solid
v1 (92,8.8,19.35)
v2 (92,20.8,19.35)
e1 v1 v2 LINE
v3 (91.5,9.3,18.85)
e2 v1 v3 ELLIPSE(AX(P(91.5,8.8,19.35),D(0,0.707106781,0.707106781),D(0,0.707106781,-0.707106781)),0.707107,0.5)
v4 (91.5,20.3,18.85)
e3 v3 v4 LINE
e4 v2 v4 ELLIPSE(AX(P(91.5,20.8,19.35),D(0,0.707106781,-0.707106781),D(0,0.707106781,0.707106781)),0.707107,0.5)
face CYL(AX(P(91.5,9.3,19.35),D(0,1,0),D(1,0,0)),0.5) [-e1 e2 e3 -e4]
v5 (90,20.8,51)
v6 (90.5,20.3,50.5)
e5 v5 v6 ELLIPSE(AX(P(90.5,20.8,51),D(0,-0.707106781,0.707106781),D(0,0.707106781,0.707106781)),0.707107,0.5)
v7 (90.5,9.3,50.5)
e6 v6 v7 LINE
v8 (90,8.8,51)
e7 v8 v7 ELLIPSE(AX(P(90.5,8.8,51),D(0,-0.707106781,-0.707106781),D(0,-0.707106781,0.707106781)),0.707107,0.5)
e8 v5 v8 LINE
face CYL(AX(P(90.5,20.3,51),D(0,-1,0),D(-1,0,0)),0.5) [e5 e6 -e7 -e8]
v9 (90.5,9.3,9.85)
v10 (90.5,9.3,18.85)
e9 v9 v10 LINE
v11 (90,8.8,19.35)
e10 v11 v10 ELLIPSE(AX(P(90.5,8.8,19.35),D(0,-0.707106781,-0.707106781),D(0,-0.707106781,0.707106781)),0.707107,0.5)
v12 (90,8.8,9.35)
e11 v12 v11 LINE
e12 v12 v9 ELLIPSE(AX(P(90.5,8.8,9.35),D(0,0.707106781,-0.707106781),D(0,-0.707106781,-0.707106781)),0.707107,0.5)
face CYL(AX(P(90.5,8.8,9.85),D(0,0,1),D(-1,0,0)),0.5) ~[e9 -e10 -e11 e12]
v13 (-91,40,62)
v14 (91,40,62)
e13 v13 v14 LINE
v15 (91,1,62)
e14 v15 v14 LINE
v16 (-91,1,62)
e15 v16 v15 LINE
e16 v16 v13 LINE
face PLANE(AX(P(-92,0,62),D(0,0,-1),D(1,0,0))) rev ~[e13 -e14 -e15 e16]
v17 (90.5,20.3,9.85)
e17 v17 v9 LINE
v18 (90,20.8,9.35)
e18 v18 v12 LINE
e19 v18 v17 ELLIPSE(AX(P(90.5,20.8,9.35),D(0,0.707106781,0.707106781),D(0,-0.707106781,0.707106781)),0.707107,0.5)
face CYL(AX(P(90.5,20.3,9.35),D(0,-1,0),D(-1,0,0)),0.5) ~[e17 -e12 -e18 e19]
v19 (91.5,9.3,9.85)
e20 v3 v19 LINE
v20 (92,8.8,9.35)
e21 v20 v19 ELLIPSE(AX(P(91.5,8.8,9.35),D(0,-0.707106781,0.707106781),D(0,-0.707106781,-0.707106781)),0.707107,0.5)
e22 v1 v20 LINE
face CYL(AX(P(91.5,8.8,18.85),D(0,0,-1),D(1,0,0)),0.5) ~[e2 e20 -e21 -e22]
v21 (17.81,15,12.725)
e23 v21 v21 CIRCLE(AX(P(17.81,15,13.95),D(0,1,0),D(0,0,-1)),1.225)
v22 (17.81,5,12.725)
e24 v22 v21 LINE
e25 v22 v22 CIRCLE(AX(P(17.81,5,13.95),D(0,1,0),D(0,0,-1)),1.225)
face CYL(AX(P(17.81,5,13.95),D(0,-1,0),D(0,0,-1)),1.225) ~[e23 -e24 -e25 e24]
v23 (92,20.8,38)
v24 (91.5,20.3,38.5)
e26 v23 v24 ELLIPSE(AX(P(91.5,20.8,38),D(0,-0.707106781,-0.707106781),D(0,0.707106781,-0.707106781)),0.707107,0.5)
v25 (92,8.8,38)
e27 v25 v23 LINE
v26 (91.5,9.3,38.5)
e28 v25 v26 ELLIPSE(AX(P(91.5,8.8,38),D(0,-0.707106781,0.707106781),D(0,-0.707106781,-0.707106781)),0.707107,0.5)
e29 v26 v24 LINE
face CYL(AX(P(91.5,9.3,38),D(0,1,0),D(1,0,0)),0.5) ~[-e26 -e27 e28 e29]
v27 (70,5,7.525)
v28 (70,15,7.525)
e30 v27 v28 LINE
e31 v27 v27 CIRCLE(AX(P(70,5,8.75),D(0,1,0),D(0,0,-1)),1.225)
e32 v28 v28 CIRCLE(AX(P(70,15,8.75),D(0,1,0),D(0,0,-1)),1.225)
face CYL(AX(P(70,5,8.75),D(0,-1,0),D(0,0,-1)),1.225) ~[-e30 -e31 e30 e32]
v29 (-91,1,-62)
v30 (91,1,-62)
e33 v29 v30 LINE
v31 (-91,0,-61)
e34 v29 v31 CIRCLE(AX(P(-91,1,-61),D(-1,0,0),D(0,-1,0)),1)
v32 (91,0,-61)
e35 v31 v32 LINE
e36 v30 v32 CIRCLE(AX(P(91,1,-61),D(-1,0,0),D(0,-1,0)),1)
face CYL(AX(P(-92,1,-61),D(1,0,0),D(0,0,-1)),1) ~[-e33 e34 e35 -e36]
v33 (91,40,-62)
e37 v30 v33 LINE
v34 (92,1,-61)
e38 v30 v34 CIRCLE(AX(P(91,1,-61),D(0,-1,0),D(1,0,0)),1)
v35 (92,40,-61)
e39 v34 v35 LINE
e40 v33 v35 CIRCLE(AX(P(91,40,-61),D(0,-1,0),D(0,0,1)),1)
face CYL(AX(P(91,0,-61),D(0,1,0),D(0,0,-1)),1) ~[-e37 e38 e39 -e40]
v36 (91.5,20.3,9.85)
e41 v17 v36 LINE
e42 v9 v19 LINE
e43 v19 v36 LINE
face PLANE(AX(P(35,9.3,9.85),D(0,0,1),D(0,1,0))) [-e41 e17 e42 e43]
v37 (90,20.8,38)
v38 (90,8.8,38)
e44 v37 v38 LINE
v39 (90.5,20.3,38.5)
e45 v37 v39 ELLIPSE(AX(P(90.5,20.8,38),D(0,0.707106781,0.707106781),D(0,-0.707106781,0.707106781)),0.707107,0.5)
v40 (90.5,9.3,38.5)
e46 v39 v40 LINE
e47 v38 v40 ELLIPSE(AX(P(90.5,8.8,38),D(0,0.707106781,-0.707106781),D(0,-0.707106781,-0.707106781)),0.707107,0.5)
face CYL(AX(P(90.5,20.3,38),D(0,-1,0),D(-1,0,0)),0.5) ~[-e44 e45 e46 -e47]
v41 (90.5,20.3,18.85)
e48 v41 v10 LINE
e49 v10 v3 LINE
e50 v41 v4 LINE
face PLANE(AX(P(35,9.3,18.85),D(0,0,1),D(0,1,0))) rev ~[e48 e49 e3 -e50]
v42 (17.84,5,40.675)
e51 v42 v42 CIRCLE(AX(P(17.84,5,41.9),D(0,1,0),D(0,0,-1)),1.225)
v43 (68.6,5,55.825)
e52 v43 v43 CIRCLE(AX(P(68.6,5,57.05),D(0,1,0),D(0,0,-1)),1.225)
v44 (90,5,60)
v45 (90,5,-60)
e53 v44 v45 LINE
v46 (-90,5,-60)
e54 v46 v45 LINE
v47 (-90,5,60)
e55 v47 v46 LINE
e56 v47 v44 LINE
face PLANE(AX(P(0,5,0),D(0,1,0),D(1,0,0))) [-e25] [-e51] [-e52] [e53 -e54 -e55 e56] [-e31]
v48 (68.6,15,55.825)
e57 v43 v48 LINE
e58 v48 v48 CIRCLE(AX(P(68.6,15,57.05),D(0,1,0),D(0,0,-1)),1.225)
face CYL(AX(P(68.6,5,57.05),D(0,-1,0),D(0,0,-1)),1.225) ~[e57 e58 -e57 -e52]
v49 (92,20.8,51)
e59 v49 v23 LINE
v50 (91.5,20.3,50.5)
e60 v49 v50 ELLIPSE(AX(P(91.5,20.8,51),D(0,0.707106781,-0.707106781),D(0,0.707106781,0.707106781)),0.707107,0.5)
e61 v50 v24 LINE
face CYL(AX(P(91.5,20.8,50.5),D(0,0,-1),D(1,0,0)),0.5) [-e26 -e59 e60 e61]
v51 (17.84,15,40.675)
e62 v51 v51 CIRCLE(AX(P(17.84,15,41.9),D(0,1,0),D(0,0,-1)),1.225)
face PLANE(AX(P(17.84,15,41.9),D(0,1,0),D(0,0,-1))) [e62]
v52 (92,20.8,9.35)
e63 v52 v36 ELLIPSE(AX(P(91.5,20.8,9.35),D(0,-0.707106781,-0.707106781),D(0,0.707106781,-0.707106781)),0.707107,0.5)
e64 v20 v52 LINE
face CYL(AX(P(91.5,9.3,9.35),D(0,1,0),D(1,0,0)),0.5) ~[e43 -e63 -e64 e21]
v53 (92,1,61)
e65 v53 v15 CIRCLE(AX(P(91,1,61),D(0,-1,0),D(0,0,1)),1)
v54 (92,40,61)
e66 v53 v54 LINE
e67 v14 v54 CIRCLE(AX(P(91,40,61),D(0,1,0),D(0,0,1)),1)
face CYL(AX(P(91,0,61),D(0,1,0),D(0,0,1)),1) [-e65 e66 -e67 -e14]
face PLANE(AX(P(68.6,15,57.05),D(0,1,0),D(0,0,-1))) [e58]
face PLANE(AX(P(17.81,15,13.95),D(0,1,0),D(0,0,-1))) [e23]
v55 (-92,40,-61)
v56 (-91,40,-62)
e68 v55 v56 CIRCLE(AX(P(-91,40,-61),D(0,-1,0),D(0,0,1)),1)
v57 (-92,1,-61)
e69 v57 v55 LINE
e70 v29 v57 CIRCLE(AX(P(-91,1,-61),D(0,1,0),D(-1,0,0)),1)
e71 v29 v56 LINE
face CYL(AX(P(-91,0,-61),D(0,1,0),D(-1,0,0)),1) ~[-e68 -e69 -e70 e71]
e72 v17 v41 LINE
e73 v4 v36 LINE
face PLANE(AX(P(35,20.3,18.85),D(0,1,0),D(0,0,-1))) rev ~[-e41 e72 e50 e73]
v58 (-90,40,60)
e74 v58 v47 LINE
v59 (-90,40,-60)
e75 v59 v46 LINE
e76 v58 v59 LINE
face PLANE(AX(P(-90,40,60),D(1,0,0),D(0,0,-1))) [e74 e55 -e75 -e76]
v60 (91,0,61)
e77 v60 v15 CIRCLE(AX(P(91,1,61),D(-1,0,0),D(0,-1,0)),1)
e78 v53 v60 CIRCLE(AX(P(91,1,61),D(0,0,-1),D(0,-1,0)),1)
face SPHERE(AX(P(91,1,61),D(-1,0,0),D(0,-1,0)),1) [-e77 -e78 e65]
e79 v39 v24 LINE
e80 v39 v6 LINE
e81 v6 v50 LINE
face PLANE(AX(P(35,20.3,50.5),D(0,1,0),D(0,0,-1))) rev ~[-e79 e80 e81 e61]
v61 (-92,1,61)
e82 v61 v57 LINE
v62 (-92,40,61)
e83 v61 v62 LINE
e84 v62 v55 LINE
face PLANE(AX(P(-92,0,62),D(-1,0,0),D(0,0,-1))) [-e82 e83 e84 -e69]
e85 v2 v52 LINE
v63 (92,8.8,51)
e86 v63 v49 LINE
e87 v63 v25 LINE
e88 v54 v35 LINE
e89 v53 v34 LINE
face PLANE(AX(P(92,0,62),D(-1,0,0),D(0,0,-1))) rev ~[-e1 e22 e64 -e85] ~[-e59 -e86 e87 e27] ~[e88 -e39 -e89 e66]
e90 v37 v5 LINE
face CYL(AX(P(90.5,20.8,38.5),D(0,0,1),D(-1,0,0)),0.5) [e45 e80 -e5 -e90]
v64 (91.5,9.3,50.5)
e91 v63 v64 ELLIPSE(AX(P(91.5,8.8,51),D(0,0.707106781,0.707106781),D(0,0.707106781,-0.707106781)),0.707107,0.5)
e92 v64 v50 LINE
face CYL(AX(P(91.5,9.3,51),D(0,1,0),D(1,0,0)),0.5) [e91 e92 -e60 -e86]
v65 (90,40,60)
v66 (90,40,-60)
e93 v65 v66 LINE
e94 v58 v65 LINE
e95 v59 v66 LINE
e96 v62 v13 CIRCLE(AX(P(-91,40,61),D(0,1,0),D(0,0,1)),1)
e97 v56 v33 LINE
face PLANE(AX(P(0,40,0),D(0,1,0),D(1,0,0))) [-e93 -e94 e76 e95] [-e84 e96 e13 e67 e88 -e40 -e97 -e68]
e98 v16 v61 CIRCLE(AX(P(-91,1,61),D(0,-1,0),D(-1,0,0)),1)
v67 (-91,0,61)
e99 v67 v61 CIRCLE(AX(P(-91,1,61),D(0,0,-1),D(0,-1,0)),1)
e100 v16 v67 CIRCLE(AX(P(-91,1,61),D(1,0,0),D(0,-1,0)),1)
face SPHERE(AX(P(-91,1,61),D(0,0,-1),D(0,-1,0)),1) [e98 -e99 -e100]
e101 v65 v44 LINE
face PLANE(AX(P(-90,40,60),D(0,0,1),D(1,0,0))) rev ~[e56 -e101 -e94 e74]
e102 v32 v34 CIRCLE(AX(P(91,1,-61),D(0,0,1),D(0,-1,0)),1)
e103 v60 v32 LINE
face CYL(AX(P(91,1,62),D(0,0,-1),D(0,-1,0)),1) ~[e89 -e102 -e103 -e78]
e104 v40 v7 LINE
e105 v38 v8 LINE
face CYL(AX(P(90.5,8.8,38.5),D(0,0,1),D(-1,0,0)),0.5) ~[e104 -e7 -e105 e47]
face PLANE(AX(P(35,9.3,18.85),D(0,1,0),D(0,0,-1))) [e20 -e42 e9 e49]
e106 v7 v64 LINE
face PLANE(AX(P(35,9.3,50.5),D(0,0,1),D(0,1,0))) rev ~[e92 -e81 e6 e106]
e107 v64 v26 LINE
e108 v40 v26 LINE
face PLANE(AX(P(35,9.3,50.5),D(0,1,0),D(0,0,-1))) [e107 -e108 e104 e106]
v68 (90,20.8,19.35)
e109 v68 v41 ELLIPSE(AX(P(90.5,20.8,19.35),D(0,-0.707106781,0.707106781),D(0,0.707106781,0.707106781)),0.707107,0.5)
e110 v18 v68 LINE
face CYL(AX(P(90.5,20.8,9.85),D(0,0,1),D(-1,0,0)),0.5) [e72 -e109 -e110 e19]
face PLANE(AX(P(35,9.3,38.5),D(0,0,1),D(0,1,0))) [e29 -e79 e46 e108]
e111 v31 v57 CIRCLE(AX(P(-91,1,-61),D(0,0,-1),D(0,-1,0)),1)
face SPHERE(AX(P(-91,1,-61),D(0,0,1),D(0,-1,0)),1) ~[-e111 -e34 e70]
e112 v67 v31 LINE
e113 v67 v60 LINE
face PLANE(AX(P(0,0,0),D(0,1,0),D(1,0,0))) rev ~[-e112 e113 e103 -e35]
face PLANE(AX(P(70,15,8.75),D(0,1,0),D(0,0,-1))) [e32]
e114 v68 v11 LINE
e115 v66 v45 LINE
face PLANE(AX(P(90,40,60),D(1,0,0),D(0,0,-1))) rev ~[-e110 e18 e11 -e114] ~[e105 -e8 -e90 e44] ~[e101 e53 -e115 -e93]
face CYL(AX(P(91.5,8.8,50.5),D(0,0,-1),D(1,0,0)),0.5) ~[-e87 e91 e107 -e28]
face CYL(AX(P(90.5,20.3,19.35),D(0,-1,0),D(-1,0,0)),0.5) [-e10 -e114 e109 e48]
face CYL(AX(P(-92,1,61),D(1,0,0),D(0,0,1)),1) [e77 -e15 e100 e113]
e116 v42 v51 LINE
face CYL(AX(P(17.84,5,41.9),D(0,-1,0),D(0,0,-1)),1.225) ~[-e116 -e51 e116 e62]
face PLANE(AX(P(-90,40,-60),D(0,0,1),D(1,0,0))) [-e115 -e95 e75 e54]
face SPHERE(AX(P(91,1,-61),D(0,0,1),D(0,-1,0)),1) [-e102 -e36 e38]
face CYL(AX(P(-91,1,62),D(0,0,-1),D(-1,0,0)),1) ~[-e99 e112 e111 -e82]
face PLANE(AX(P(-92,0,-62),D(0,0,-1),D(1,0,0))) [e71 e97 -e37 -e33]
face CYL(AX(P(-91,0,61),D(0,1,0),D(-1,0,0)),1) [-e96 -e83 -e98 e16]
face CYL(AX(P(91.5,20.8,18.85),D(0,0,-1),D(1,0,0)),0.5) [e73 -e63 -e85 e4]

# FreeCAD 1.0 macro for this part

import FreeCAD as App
import Part
import Sketcher
from FreeCAD import Vector


def edges_at(feature, points):
    """Names of the edges that pass closest to the given points."""
    edges = feature.Shape.Edges
    near = lambda p: min(range(len(edges)), key=lambda i: edges[i].distToShape(Part.Vertex(*p))[0])
    return sorted({f"Edge{near(p) + 1}" for p in points})

doc = App.newDocument("Part")
body = doc.addObject("PartDesign::Body", "Body")

# Sketch on XZ plane
sketch1 = body.newObject("Sketcher::SketchObject", "Sketch")
sketch1.AttachmentSupport = (doc.getObject("XZ_Plane"), [""])
sketch1.MapMode = "FlatFace"
sketch1.addGeometry([
    Part.LineSegment(Vector(-92, -62, 0), Vector(-92, 62, 0)),
    Part.LineSegment(Vector(-92, 62, 0), Vector(92, 62, 0)),
    Part.LineSegment(Vector(92, 62, 0), Vector(92, -62, 0)),
    Part.LineSegment(Vector(92, -62, 0), Vector(-92, -62, 0)),
], False)
sketch1.addConstraint([
    Sketcher.Constraint("Coincident", 0, 2, 1, 1),
    Sketcher.Constraint("Coincident", 1, 2, 2, 1),
    Sketcher.Constraint("Coincident", 2, 2, 3, 1),
    Sketcher.Constraint("Coincident", 3, 2, 0, 1),
    Sketcher.Constraint("Vertical", 0),
    Sketcher.Constraint("Horizontal", 1),
    Sketcher.Constraint("Vertical", 2),
    Sketcher.Constraint("Horizontal", 3),
    Sketcher.Constraint("Symmetric", 0, 2, 2, 2, -1, 1),
    Sketcher.Constraint("DistanceX", 1, 1, 1, 2, 184.0),
    Sketcher.Constraint("DistanceY", 0, 1, 0, 2, 124.0),
])
pad1 = body.newObject("PartDesign::Pad", "Pad")
pad1.Profile = sketch1
pad1.Length = 40
pad1.Reversed = True

# Sketch on XZ plane
sketch2 = body.newObject("Sketcher::SketchObject", "Sketch001")
sketch2.AttachmentSupport = (doc.getObject("XZ_Plane"), [""])
sketch2.MapMode = "FlatFace"
sketch2.AttachmentOffset = App.Placement(Vector(0, 0, -40), App.Rotation())
sketch2.addGeometry([
    Part.LineSegment(Vector(-90, -60, 0), Vector(-90, 60, 0)),
    Part.LineSegment(Vector(-90, 60, 0), Vector(90, 60, 0)),
    Part.LineSegment(Vector(90, 60, 0), Vector(90, -60, 0)),
    Part.LineSegment(Vector(90, -60, 0), Vector(-90, -60, 0)),
], False)
sketch2.addConstraint([
    Sketcher.Constraint("Coincident", 0, 2, 1, 1),
    Sketcher.Constraint("Coincident", 1, 2, 2, 1),
    Sketcher.Constraint("Coincident", 2, 2, 3, 1),
    Sketcher.Constraint("Coincident", 3, 2, 0, 1),
    Sketcher.Constraint("Vertical", 0),
    Sketcher.Constraint("Horizontal", 1),
    Sketcher.Constraint("Vertical", 2),
    Sketcher.Constraint("Horizontal", 3),
    Sketcher.Constraint("Symmetric", 0, 2, 2, 2, -1, 1),
    Sketcher.Constraint("DistanceX", 1, 1, 1, 2, 180.0),
    Sketcher.Constraint("DistanceY", 0, 1, 0, 2, 120.0),
])
pocket1 = body.newObject("PartDesign::Pocket", "Pocket")
pocket1.Profile = sketch2
pocket1.Length = 35
pocket1.Reversed = True

# Sketch on YZ plane
sketch3 = body.newObject("Sketcher::SketchObject", "Sketch002")
sketch3.AttachmentSupport = (doc.getObject("YZ_Plane"), [""])
sketch3.MapMode = "FlatFace"
sketch3.AttachmentOffset = App.Placement(Vector(0, 0, 92), App.Rotation())
sketch3.addGeometry([
    Part.LineSegment(Vector(20, 50, 0), Vector(9, 50, 0)),  # 0
    Part.LineSegment(Vector(9, 50, 0), Vector(9, 38, 0)),  # 1
    Part.LineSegment(Vector(9, 38, 0), Vector(20, 38, 0)),  # 2
    Part.LineSegment(Vector(20, 38, 0), Vector(20, 50, 0)),  # 3
    Part.LineSegment(Vector(20, 19, 0), Vector(9, 19, 0)),  # 4
    Part.LineSegment(Vector(9, 19, 0), Vector(9, 10, 0)),  # 5
    Part.LineSegment(Vector(9, 10, 0), Vector(20, 10, 0)),  # 6
    Part.LineSegment(Vector(20, 10, 0), Vector(20, 19, 0)),  # 7
], False)
sketch3.addConstraint([
    Sketcher.Constraint("Coincident", 0, 2, 1, 1),
    Sketcher.Constraint("Coincident", 1, 2, 2, 1),
    Sketcher.Constraint("Coincident", 2, 2, 3, 1),
    Sketcher.Constraint("Coincident", 3, 2, 0, 1),
    Sketcher.Constraint("Coincident", 4, 2, 5, 1),
    Sketcher.Constraint("Coincident", 5, 2, 6, 1),
    Sketcher.Constraint("Coincident", 6, 2, 7, 1),
    Sketcher.Constraint("Coincident", 7, 2, 4, 1),
    Sketcher.Constraint("Horizontal", 0),
    Sketcher.Constraint("Vertical", 1),
    Sketcher.Constraint("Horizontal", 2),
    Sketcher.Constraint("Vertical", 3),
    Sketcher.Constraint("Horizontal", 4),
    Sketcher.Constraint("Vertical", 5),
    Sketcher.Constraint("Horizontal", 6),
    Sketcher.Constraint("Vertical", 7),
    Sketcher.Constraint("Vertical", 1, 2, 4, 2),
    Sketcher.Constraint("Vertical", 3, 2, 6, 2),
    Sketcher.Constraint("DistanceX", 0, 2, 0, 1, 11.0),
    Sketcher.Constraint("DistanceY", 1, 2, 1, 1, 12.0),
    Sketcher.Constraint("DistanceY", 5, 2, 5, 1, 9.0),
    Sketcher.Constraint("DistanceX", -1, 1, 0, 2, 9.3),
    Sketcher.Constraint("DistanceY", -1, 1, 0, 2, 50.5),
    Sketcher.Constraint("DistanceY", -1, 1, 4, 2, 18.85),
])
pocket2 = body.newObject("PartDesign::Pocket", "Pocket001")
pocket2.Profile = sketch3
pocket2.Type = "TwoLengths"
pocket2.Length = 100
pocket2.Length2 = 57
pocket2.Reversed = True

# Sketch on XZ plane
sketch4 = body.newObject("Sketcher::SketchObject", "Sketch003")
sketch4.AttachmentSupport = (doc.getObject("XZ_Plane"), [""])
sketch4.MapMode = "FlatFace"
sketch4.AttachmentOffset = App.Placement(Vector(0, 0, -5), App.Rotation())
sketch4.addGeometry([
    Part.Circle(Vector(70, 8.8, 0), Vector(0, 0, 1), 1.2),
    Part.Circle(Vector(68.6, 57, 0), Vector(0, 0, 1), 1.2),
    Part.Circle(Vector(17.8, 41.9, 0), Vector(0, 0, 1), 1.2),
    Part.Circle(Vector(17.8, 13.9, 0), Vector(0, 0, 1), 1.2),
], False)
sketch4.addConstraint([
    Sketcher.Constraint("Equal", 0, 1),
    Sketcher.Constraint("Equal", 1, 2),
    Sketcher.Constraint("Equal", 2, 3),
    Sketcher.Constraint("Diameter", 0, 2.45),
    Sketcher.Constraint("DistanceX", -1, 1, 0, 3, 70.0),
    Sketcher.Constraint("DistanceX", -1, 1, 1, 3, 68.6),
    Sketcher.Constraint("DistanceY", -1, 1, 2, 3, 41.9),
    Sketcher.Constraint("DistanceY", 0, 3, 1, 3, 48.3),
    Sketcher.Constraint("DistanceY", 0, 3, 3, 3, 5.2),
    Sketcher.Constraint("DistanceY", -1, 1, 0, 3, 8.75),
    Sketcher.Constraint("DistanceX", -1, 1, 2, 3, 17.84),
    Sketcher.Constraint("DistanceX", -1, 1, 3, 3, 17.81),
])
pad2 = body.newObject("PartDesign::Pad", "Pad001")
pad2.Profile = sketch4
pad2.Length = 10
pad2.Reversed = True
doc.recompute()

fillet = body.newObject("PartDesign::Fillet", "Fillet")
fillet.Base = (pad2, edges_at(pad2, [
    (-92, 0, 0),
    (0, 0, 62),
    (92, 0, 0),
    (0, 0, -62),
    (-92, 20, -62),
    (-92, 20, 62),
    (92, 20, 62),
    (92, 20, -62),
]))
fillet.Radius = 1
doc.recompute()

fillet2 = body.newObject("PartDesign::Fillet", "Fillet001")
fillet2.Base = (fillet, edges_at(fillet, [
    (90, 20.3, 44.5),
    (90, 14.8, 38.5),
    (90, 9.3, 44.5),
    (90, 14.8, 50.5),
    (90, 20.3, 14.35),
    (90, 14.8, 9.85),
    (90, 9.3, 14.35),
    (90, 14.8, 18.85),
    (92, 14.8, 18.85),
    (92, 9.3, 14.35),
    (92, 14.8, 9.85),
    (92, 20.3, 14.35),
    (92, 14.8, 50.5),
    (92, 9.3, 44.5),
    (92, 14.8, 38.5),
    (92, 20.3, 44.5),
]))
fillet2.Radius = 0.5

doc.recompute()
